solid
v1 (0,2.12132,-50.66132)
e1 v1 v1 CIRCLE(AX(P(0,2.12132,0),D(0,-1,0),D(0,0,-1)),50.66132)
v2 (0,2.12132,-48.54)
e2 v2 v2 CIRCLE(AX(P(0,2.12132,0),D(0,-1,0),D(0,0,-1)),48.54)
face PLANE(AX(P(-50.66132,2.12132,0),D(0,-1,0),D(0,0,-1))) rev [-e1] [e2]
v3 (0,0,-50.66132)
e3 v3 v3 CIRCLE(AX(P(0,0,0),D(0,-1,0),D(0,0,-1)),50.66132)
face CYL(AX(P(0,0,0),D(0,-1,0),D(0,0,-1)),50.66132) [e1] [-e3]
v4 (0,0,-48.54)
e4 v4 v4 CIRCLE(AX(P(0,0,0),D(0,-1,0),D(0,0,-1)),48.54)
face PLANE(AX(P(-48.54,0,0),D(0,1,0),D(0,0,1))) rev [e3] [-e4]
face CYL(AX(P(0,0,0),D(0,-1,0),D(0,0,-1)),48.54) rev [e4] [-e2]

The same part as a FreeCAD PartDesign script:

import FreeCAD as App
import Part
import Sketcher
Q = App.Units.Quantity


def add_polygon(sketch, points):
    """Adds a closed chain of lines whose ends are joined by coincident constraints."""
    first, n = sketch.GeometryCount, len(points)
    for a, b in zip(points, points[1:] + points[:1]):
        sketch.addGeometry(Part.LineSegment(App.Vector(*a, 0), App.Vector(*b, 0)), False)
    for i in range(n):
        sketch.addConstraint(Sketcher.Constraint("Coincident", first + i, 2, first + (i + 1) % n, 1))

doc = App.newDocument("Part")
params = doc.addObject("Spreadsheet::Sheet", "Params")
for row, (alias, value) in enumerate([
    ("revolution_angle", "360 deg"),
], start=1):
    params.set(f"A{row}", alias)
    params.set(f"B{row}", "=" + value)
    params.setAlias(f"B{row}", alias)

body = doc.addObject("PartDesign::Body", "Body")

# Sketch on XY plane
sketch1 = doc.addObject("Sketcher::SketchObject", "Sketch")
body.addObject(sketch1)
sketch1.AttachmentSupport = (doc.XY_Plane, [""])
sketch1.MapMode = "FlatFace"
add_polygon(sketch1, [(-50.7, 2.1), (-50.7, 0), (-48.5, 0), (-48.5, 2.1)])  # lines 0-3
sketch1.addConstraint([
    Sketcher.Constraint("Vertical", 0),
    Sketcher.Constraint("Horizontal", 1),
    Sketcher.Constraint("Vertical", 2),
    Sketcher.Constraint("Horizontal", 3),
    Sketcher.Constraint("PointOnObject", 0, 2, -1),
    Sketcher.Constraint("Equal", 3, 0),
    Sketcher.Constraint("DistanceX", 1, 2, -1, 1, Q("48.54 mm")),
    Sketcher.Constraint("DistanceX", 1, 1, 1, 2, Q("2.12132 mm")),
])
revolution = doc.addObject("PartDesign::Revolution", "Revolution")
body.addObject(revolution)
revolution.Profile = sketch1
revolution.ReferenceAxis = (sketch1, ["V_Axis"])
revolution.setExpression("Angle", "Params.revolution_angle")

doc.recompute()
